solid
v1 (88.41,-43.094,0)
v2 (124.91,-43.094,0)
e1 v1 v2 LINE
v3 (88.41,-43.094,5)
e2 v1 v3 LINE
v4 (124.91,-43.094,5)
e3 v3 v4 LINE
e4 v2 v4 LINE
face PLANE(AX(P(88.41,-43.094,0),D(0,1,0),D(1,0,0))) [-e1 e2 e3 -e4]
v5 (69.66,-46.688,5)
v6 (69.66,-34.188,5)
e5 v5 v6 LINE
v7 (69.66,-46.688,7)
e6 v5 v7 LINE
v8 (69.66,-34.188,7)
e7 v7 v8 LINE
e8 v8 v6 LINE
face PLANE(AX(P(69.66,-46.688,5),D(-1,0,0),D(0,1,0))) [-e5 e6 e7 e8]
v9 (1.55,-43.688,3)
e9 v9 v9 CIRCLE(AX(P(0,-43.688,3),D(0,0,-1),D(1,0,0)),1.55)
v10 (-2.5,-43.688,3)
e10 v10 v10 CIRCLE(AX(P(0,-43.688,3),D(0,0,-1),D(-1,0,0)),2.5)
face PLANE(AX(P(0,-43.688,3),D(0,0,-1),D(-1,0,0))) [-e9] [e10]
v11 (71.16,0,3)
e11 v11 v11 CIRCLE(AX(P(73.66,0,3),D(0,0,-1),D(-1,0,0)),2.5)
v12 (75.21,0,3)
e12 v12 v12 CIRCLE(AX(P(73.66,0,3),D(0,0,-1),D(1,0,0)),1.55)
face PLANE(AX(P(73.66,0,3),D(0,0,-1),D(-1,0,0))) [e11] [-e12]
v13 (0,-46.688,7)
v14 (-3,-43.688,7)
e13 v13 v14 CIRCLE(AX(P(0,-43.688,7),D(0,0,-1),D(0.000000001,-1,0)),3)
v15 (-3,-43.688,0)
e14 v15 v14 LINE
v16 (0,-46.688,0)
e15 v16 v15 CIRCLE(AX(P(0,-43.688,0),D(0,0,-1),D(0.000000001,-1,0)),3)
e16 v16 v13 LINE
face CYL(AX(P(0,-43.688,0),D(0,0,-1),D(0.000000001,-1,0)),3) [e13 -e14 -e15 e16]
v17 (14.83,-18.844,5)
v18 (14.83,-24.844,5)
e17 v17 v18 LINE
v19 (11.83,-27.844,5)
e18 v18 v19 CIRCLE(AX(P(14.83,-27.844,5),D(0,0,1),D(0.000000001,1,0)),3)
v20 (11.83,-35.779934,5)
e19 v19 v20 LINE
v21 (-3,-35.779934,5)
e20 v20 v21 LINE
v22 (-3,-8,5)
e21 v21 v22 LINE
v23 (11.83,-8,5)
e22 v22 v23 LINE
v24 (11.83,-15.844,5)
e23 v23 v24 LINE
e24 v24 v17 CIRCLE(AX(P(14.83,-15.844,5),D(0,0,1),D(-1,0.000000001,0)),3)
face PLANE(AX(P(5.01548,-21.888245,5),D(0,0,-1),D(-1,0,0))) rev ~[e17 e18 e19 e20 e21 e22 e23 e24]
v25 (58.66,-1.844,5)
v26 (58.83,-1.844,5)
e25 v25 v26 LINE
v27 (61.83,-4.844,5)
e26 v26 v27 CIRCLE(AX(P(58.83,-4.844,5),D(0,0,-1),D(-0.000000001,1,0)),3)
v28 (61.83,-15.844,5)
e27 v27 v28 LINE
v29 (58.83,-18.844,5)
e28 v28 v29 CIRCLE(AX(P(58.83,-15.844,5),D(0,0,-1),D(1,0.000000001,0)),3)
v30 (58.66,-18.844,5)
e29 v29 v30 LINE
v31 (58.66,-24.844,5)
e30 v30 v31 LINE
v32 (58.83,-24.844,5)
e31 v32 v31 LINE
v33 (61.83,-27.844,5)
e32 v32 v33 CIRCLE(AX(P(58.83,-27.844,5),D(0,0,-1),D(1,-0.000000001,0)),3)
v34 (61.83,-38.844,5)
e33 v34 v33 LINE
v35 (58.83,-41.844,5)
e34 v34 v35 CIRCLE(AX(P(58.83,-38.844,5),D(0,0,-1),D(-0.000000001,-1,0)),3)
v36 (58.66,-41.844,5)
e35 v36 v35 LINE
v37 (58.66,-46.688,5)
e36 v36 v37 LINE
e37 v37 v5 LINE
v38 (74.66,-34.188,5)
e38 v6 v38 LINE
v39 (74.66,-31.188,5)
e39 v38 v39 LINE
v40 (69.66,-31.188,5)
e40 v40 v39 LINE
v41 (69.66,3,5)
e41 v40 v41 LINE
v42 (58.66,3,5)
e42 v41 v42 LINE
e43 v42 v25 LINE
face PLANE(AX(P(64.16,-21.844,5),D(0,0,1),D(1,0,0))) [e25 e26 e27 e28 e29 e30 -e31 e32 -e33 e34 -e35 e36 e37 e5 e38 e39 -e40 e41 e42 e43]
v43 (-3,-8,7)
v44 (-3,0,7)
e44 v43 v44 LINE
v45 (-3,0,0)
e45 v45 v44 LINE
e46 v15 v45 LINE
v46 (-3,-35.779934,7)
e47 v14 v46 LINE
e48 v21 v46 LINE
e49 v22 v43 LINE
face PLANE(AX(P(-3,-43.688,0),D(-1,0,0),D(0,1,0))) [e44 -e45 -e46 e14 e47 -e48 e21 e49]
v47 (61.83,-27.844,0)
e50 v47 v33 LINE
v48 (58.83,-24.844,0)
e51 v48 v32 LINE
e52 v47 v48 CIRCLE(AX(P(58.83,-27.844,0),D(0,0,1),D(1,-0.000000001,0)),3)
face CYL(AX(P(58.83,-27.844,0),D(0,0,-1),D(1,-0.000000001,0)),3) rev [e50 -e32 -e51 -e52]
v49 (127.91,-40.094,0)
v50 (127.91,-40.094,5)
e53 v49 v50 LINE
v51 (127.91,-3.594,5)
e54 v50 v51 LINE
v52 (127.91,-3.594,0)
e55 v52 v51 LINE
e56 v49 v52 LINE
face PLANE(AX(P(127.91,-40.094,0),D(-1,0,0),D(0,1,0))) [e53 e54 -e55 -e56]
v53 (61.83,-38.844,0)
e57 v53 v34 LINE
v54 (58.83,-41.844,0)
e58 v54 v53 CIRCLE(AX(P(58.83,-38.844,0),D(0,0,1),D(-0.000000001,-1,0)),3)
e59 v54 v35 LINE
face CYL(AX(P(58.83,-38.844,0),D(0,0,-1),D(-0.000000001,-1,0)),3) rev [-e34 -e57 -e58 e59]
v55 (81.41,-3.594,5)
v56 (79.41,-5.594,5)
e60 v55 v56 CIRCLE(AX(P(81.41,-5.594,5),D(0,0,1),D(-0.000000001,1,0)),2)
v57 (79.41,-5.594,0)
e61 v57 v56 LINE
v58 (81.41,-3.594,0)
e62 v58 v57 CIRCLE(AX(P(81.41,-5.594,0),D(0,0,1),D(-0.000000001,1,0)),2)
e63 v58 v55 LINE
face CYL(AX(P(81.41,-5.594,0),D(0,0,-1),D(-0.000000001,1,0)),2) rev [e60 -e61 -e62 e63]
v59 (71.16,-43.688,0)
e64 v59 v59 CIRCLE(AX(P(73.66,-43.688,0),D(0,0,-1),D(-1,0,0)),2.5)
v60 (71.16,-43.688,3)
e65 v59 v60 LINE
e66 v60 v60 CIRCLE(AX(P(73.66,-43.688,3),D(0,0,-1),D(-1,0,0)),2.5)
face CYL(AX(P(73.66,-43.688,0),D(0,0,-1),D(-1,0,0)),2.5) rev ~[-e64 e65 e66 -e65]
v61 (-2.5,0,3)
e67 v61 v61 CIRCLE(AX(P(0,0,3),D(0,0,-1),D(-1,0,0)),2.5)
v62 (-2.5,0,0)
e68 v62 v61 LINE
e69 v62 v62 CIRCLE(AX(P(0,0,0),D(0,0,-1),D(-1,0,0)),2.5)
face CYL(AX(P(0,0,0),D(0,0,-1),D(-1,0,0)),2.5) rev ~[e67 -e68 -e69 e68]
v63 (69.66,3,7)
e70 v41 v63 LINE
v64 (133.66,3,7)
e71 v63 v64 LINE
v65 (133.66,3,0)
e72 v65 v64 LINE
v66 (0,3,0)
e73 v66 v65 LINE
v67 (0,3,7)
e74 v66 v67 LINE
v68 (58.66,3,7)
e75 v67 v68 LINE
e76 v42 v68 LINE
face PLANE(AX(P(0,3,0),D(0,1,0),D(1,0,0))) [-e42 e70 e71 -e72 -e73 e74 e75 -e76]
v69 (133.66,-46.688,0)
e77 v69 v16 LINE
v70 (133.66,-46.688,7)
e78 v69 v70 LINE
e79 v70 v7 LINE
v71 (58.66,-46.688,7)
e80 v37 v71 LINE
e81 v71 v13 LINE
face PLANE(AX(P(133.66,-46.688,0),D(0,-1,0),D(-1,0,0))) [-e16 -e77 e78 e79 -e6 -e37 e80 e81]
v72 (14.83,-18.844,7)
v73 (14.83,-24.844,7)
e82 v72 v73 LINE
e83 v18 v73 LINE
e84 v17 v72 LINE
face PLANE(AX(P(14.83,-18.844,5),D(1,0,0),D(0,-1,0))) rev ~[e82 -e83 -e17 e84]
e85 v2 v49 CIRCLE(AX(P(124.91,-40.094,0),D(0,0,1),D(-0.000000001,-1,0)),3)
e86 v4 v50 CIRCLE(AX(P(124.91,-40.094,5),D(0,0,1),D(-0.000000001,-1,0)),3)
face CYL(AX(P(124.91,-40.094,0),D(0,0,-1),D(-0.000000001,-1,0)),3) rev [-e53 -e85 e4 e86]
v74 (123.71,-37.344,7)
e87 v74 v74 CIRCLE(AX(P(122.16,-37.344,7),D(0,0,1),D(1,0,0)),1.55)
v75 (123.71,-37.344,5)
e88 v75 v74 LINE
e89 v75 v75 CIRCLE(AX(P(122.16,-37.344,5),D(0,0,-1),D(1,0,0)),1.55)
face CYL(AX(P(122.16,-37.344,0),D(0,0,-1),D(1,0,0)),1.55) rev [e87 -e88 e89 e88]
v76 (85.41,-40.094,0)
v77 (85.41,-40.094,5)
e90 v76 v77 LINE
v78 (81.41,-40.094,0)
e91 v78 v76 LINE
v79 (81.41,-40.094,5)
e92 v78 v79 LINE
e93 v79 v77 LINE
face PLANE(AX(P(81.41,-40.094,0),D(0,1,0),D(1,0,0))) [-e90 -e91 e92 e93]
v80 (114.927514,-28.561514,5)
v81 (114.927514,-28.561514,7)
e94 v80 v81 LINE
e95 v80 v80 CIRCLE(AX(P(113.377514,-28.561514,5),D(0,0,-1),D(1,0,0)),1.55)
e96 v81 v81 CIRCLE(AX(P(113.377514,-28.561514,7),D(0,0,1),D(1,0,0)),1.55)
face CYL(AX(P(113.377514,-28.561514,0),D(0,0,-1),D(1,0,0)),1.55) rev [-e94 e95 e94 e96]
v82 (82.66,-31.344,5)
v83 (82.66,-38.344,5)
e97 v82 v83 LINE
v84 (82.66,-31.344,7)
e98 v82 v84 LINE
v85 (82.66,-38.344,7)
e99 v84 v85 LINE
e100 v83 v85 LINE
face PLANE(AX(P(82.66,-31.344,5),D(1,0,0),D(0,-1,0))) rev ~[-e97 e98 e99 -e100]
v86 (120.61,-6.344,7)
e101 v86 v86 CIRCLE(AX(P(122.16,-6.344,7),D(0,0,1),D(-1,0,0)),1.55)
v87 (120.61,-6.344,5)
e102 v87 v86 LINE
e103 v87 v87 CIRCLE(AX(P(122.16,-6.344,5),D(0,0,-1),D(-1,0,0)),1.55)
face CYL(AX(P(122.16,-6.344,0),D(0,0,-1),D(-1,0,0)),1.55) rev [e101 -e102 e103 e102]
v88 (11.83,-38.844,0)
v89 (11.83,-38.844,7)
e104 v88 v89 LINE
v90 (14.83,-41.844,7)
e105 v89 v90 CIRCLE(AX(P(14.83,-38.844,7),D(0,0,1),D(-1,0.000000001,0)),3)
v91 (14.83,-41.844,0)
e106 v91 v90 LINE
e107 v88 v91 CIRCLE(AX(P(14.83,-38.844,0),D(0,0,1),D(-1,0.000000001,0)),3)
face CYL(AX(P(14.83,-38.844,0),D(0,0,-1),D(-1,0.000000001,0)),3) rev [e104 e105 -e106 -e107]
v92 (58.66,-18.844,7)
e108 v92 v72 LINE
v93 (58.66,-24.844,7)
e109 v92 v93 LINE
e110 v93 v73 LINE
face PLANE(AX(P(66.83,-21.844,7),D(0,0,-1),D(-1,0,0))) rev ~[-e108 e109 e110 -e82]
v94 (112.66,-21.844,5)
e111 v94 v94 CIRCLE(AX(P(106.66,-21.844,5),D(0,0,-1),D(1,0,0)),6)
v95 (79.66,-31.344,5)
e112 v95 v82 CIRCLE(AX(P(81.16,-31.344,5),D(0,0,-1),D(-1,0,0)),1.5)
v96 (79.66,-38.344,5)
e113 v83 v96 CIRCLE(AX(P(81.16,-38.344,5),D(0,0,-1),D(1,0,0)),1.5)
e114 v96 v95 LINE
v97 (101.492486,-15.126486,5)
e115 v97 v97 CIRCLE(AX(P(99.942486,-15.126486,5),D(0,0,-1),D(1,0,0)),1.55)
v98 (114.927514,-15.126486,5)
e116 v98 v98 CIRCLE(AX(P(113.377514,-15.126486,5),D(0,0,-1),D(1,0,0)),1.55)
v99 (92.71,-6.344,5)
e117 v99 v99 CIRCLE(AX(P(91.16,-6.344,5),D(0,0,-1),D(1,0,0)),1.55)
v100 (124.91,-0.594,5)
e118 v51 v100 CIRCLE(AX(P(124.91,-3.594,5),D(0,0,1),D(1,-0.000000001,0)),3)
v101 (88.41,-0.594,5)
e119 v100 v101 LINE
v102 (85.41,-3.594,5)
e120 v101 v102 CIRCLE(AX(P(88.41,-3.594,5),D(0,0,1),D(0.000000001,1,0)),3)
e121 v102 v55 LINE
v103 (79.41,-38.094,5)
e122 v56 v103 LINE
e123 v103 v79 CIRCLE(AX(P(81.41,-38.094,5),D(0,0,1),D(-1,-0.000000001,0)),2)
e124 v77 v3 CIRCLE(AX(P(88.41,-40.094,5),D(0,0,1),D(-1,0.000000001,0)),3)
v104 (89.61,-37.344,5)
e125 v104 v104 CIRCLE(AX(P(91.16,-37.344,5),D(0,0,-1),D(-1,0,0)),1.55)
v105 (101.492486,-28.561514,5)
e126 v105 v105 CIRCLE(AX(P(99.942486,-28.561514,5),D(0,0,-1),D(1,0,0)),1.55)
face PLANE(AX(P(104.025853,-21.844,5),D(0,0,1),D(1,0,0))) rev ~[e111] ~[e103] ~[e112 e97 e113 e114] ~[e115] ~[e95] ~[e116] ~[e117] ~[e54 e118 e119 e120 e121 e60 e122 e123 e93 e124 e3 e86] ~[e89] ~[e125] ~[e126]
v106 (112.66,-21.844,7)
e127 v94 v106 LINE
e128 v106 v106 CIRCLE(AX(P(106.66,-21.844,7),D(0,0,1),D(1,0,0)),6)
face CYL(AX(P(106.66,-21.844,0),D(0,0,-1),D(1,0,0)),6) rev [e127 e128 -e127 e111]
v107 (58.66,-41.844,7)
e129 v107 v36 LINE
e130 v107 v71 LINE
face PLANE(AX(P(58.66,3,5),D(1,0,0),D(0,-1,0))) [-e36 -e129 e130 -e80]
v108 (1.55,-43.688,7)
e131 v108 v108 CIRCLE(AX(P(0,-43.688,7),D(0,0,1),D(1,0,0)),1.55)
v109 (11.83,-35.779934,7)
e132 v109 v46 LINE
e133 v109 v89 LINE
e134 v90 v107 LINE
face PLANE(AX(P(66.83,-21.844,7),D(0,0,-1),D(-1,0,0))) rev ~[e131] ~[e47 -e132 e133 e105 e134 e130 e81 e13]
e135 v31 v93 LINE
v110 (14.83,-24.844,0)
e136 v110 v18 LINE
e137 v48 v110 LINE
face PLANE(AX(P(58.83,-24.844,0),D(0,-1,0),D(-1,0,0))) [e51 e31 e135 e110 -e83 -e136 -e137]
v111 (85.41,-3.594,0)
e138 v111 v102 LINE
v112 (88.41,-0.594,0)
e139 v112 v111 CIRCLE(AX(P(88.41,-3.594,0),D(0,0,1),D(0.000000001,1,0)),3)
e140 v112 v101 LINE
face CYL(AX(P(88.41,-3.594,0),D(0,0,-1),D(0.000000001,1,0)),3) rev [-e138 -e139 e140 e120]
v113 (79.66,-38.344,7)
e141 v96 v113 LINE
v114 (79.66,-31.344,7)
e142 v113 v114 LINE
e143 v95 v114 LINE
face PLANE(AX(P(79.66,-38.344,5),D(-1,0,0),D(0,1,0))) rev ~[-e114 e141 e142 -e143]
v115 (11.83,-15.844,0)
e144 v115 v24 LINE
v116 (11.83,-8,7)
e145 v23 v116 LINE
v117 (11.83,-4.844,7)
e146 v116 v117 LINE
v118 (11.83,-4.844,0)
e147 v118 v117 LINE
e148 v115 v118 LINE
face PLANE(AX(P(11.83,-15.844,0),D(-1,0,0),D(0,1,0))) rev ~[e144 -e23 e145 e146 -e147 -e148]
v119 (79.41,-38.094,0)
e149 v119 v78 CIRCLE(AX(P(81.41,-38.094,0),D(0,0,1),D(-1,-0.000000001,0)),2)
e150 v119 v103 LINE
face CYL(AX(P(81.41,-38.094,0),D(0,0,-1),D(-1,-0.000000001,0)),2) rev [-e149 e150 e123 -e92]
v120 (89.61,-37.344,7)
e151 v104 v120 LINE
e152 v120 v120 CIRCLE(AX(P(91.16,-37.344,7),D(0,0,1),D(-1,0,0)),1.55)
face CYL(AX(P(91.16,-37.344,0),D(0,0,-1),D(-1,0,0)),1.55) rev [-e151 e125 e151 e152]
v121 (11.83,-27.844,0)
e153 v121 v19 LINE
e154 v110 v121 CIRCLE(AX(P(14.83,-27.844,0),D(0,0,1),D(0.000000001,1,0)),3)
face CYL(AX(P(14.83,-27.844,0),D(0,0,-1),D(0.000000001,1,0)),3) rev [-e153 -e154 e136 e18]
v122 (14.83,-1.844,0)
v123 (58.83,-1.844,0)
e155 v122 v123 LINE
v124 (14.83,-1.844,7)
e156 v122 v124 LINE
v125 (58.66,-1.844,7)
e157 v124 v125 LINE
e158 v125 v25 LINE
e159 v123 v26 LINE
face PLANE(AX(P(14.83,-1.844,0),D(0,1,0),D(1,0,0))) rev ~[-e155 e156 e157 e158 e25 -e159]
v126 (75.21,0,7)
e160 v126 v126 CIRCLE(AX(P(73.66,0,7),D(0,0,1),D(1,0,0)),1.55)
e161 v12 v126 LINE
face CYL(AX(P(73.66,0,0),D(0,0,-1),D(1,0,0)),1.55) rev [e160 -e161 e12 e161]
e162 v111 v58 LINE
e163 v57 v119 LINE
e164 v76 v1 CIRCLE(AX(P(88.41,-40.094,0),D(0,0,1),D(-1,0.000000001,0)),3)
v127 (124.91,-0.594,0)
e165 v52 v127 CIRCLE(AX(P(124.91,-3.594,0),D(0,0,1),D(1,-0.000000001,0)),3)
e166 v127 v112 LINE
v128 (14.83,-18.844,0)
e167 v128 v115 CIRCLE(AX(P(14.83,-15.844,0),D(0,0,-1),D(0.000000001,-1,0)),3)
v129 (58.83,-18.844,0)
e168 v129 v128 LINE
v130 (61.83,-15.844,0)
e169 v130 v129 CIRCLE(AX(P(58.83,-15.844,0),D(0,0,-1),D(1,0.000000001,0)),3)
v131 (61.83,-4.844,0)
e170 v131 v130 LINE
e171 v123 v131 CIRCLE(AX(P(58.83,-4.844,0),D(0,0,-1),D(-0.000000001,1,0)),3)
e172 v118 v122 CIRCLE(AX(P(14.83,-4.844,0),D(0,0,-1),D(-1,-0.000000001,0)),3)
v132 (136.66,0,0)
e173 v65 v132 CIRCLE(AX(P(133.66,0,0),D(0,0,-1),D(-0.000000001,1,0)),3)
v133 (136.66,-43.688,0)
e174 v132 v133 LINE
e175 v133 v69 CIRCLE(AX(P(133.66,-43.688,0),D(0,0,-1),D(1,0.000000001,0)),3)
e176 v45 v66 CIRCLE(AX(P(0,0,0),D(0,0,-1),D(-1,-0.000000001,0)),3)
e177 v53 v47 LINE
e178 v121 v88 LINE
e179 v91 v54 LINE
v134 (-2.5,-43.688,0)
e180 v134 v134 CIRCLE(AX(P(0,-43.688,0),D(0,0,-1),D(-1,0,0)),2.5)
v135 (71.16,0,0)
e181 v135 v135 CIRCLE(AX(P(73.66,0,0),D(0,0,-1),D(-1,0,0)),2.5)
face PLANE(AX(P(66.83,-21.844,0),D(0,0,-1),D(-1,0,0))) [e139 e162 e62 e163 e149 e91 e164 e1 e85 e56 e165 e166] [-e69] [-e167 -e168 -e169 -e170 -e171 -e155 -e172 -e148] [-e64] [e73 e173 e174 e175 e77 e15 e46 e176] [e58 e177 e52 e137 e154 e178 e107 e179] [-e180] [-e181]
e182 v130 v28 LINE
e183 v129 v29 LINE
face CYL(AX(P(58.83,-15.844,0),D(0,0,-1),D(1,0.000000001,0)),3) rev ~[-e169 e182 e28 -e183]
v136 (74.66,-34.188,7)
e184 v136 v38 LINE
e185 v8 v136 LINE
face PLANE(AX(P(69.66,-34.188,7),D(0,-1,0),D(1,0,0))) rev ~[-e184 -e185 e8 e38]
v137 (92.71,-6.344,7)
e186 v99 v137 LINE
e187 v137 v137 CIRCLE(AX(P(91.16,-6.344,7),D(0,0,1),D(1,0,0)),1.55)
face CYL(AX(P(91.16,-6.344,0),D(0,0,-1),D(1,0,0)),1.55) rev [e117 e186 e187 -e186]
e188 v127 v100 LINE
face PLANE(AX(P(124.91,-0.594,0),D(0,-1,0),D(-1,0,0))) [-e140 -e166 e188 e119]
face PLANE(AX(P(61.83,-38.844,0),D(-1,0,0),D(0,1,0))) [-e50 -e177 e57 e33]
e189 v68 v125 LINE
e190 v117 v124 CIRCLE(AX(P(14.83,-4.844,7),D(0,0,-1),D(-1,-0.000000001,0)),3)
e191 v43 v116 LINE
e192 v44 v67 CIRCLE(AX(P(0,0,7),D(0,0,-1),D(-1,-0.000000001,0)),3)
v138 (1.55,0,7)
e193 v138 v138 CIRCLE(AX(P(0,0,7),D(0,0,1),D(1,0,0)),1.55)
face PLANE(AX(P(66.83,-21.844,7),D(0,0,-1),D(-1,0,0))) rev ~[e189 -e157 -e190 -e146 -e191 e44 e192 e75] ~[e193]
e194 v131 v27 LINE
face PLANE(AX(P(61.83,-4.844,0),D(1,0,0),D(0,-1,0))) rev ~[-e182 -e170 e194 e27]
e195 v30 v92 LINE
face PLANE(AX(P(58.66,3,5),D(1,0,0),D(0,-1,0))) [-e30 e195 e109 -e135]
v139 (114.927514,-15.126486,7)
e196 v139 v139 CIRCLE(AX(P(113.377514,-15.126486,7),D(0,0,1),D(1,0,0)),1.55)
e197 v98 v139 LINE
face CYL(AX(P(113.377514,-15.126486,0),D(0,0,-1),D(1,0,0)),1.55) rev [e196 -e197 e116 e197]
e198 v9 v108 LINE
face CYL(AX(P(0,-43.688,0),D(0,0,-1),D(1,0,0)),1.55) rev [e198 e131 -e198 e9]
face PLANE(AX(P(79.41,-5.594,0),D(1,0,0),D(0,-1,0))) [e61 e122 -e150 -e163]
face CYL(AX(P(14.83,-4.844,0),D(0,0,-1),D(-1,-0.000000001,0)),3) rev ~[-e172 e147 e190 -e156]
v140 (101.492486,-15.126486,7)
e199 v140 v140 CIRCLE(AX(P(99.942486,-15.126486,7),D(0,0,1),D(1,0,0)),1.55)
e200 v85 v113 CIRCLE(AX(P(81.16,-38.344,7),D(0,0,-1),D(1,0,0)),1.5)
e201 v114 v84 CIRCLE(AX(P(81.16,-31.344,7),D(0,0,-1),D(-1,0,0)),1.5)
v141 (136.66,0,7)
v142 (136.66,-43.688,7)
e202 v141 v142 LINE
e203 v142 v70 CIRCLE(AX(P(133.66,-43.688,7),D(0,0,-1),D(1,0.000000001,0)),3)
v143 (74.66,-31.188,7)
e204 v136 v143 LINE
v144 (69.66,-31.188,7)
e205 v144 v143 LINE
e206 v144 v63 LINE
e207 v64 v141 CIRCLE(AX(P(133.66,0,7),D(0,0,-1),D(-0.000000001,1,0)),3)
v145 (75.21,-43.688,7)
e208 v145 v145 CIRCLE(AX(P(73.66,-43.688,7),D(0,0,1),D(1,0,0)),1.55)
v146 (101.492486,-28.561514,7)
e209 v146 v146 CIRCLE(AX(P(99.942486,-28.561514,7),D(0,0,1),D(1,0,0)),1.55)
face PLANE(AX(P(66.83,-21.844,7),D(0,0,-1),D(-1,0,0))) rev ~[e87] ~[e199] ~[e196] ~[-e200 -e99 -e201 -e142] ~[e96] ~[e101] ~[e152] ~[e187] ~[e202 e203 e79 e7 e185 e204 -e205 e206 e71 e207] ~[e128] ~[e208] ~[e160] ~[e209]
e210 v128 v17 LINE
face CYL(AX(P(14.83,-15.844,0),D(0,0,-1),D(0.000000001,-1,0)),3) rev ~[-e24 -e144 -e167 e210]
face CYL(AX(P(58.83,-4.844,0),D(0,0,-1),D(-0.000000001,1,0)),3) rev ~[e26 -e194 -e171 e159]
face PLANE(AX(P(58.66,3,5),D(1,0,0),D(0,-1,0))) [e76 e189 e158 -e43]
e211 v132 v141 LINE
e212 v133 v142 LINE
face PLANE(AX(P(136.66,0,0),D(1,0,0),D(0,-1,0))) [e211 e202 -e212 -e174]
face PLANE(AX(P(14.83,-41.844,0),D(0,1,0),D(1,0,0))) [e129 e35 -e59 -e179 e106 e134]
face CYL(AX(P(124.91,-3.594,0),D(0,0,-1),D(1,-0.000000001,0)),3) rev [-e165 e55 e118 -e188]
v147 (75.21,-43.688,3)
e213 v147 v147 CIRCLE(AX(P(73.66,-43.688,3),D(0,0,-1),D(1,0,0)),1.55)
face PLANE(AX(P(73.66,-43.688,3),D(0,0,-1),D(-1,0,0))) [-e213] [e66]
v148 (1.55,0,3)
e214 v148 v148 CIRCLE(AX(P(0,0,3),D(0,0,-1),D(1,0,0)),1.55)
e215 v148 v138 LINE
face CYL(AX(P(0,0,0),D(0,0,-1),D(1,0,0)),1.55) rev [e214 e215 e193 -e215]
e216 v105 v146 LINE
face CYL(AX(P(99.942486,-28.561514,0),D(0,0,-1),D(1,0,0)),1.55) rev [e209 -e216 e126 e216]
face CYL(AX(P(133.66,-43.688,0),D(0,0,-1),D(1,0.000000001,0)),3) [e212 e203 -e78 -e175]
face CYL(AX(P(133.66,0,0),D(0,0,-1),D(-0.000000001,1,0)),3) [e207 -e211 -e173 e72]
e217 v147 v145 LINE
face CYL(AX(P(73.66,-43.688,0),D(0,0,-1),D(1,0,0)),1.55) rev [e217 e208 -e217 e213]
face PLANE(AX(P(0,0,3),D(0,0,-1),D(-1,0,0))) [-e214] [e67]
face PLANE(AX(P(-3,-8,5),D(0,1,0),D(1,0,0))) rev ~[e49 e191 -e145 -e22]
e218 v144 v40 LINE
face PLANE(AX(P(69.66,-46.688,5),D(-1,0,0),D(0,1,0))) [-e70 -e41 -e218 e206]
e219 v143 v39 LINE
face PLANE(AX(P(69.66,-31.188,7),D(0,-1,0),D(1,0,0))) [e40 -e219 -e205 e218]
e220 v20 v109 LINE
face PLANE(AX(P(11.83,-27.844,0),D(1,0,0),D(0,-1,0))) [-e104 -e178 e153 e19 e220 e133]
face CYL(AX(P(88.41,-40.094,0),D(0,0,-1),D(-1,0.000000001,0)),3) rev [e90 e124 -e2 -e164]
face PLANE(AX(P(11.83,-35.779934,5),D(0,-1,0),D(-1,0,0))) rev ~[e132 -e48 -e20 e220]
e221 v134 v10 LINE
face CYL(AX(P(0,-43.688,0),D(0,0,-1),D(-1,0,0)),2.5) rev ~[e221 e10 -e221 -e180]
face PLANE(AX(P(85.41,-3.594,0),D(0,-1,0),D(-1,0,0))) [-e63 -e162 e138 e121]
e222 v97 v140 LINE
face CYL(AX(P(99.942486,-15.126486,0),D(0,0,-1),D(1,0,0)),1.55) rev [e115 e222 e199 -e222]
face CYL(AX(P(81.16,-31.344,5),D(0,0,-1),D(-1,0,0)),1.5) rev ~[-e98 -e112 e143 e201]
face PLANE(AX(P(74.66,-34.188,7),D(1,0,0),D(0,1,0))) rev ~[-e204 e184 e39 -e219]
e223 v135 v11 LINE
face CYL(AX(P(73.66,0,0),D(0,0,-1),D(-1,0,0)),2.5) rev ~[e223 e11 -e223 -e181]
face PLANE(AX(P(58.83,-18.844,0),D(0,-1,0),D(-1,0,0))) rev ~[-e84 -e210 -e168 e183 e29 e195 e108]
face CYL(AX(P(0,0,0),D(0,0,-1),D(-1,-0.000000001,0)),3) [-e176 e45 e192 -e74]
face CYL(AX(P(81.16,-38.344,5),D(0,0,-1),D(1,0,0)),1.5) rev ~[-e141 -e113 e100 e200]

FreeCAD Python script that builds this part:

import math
import FreeCAD as App
import Part
import Sketcher
from FreeCAD import Vector

doc = App.newDocument("Part")
params = doc.addObject("Spreadsheet::Sheet", "Params")
for row, (alias, value) in enumerate([
    ("sketch1_diameter", "12 mm"),
    ("sketch1_radius", "3 mm"),
    ("sketch1_diameter2", "3.1 mm"),
    ("sketch1_width", "44 mm"),
    ("sketch1_height", "11 mm"),
    ("pad1_length", "7 mm"),
    ("sketch2_radius", "3 mm"),
    ("sketch2_width", "11 mm"),
    ("sketch2_height", "6 mm"),
    ("sketch2_width2", "14.83 mm"),
    ("pocket1_length", "2 mm"),
    ("sketch3_diameter", "5 mm"),
    ("pocket2_length", "3 mm"),
    ("sketch4_radius", "3 mm"),
    ("sketch4_radius2", "2 mm"),
    ("sketch4_width", "4 mm"),
    ("sketch4_width2", "36.5 mm"),
    ("pocket3_length", "5 mm"),
    ("sketch5_radius", "1.5 mm"),
    ("sketch5_height", "7 mm"),
    ("pocket4_length", "2 mm"),
    ("sketch6_width", "5 mm"),
    ("sketch6_height", "3 mm"),
    ("pocket5_length", "2 mm"),
], start=1):
    params.set(f"A{row}", alias)
    params.set(f"B{row}", "=" + value)
    params.setAlias(f"B{row}", alias)

body = doc.addObject("PartDesign::Body", "Body")

# Sketch on XY plane
sketch1 = body.newObject("Sketcher::SketchObject", "Sketch")
sketch1.AttachmentSupport = (doc.getObject("XY_Plane"), [""])
sketch1.MapMode = "FlatFace"
sketch1.addGeometry([
    Part.LineSegment(Vector(133.7, 3, 0), Vector(0, 3, 0)),  # 0
    Part.ArcOfCircle(Part.Circle(Vector(0, 0, 0), Vector(0, 0, 1), 3), math.radians(90), math.radians(180)),  # 1
    Part.LineSegment(Vector(-3, 0, 0), Vector(-3, -43.7, 0)),  # 2
    Part.ArcOfCircle(Part.Circle(Vector(0, -43.7, 0), Vector(0, 0, 1), 3), math.radians(180), math.radians(270)),  # 3
    Part.LineSegment(Vector(0, -46.7, 0), Vector(133.7, -46.7, 0)),  # 4
    Part.ArcOfCircle(Part.Circle(Vector(133.7, -43.7, 0), Vector(0, 0, 1), 3), math.radians(-90), math.radians(0)),  # 5
    Part.LineSegment(Vector(136.7, -43.7, 0), Vector(136.7, 0, 0)),  # 6
    Part.ArcOfCircle(Part.Circle(Vector(133.7, 0, 0), Vector(0, 0, 1), 3), math.radians(0), math.radians(90)),  # 7
    Part.Circle(Vector(122.2, -37.3, 0), Vector(0, 0, 1), 1.6),  # 8
    Part.Circle(Vector(73.7, -43.7, 0), Vector(0, 0, 1), 1.6),  # 9
    Part.Circle(Vector(91.2, -37.3, 0), Vector(0, 0, 1), 1.6),  # 10
    Part.Circle(Vector(113.4, -28.6, 0), Vector(0, 0, 1), 1.6),  # 11
    Part.Circle(Vector(99.9, -28.6, 0), Vector(0, 0, 1), 1.6),  # 12
    Part.Circle(Vector(0, -43.7, 0), Vector(0, 0, 1), 1.6),  # 13
    Part.LineSegment(Vector(58.8, -41.8, 0), Vector(14.8, -41.8, 0)),  # 14
    Part.ArcOfCircle(Part.Circle(Vector(14.8, -38.8, 0), Vector(0, 0, 1), 3), math.radians(180), math.radians(270)),  # 15
    Part.LineSegment(Vector(11.8, -38.8, 0), Vector(11.8, -27.8, 0)),  # 16
    Part.ArcOfCircle(Part.Circle(Vector(14.8, -27.8, 0), Vector(0, 0, 1), 3), math.radians(90), math.radians(180)),  # 17
    Part.LineSegment(Vector(14.8, -24.8, 0), Vector(58.8, -24.8, 0)),  # 18
    Part.ArcOfCircle(Part.Circle(Vector(58.8, -27.8, 0), Vector(0, 0, 1), 3), math.radians(0), math.radians(90)),  # 19
    Part.LineSegment(Vector(61.8, -27.8, 0), Vector(61.8, -38.8, 0)),  # 20
    Part.ArcOfCircle(Part.Circle(Vector(58.8, -38.8, 0), Vector(0, 0, 1), 3), math.radians(-90), math.radians(0)),  # 21
    Part.Circle(Vector(106.7, -21.8, 0), Vector(0, 0, 1), 6),  # 22
    Part.Circle(Vector(113.4, -15.1, 0), Vector(0, 0, 1), 1.6),  # 23
    Part.Circle(Vector(99.9, -15.1, 0), Vector(0, 0, 1), 1.6),  # 24
    Part.Circle(Vector(122.2, -6.3, 0), Vector(0, 0, 1), 1.6),  # 25
    Part.Circle(Vector(91.2, -6.3, 0), Vector(0, 0, 1), 1.6),  # 26
    Part.Circle(Vector(73.7, 0, 0), Vector(0, 0, 1), 1.6),  # 27
    Part.LineSegment(Vector(11.8, -15.8, 0), Vector(11.8, -4.8, 0)),  # 28
    Part.ArcOfCircle(Part.Circle(Vector(14.8, -4.8, 0), Vector(0, 0, 1), 3), math.radians(90), math.radians(180)),  # 29
    Part.LineSegment(Vector(14.8, -1.8, 0), Vector(58.8, -1.8, 0)),  # 30
    Part.ArcOfCircle(Part.Circle(Vector(58.8, -4.8, 0), Vector(0, 0, 1), 3), math.radians(0), math.radians(90)),  # 31
    Part.LineSegment(Vector(61.8, -4.8, 0), Vector(61.8, -15.8, 0)),  # 32
    Part.ArcOfCircle(Part.Circle(Vector(58.8, -15.8, 0), Vector(0, 0, 1), 3), math.radians(-90), math.radians(0)),  # 33
    Part.LineSegment(Vector(58.8, -18.8, 0), Vector(14.8, -18.8, 0)),  # 34
    Part.ArcOfCircle(Part.Circle(Vector(14.8, -15.8, 0), Vector(0, 0, 1), 3), math.radians(180), math.radians(270)),  # 35
    Part.Circle(Vector(0, 0, 0), Vector(0, 0, 1), 1.6),  # 36
], False)
sketch1.addConstraint([
    Sketcher.Constraint("Tangent", 0, 2, 1, 1),
    Sketcher.Constraint("Tangent", 1, 2, 2, 1),
    Sketcher.Constraint("Tangent", 2, 2, 3, 1),
    Sketcher.Constraint("Tangent", 3, 2, 4, 1),
    Sketcher.Constraint("Tangent", 4, 2, 5, 1),
    Sketcher.Constraint("Tangent", 5, 2, 6, 1),
    Sketcher.Constraint("Tangent", 6, 2, 7, 1),
    Sketcher.Constraint("Tangent", 7, 2, 0, 1),
    Sketcher.Constraint("Tangent", 14, 2, 15, 2),
    Sketcher.Constraint("Tangent", 15, 1, 16, 1),
    Sketcher.Constraint("Tangent", 16, 2, 17, 2),
    Sketcher.Constraint("Tangent", 17, 1, 18, 1),
    Sketcher.Constraint("Tangent", 18, 2, 19, 2),
    Sketcher.Constraint("Tangent", 19, 1, 20, 1),
    Sketcher.Constraint("Tangent", 20, 2, 21, 2),
    Sketcher.Constraint("Tangent", 21, 1, 14, 1),
    Sketcher.Constraint("Tangent", 28, 2, 29, 2),
    Sketcher.Constraint("Tangent", 29, 1, 30, 1),
    Sketcher.Constraint("Tangent", 30, 2, 31, 2),
    Sketcher.Constraint("Tangent", 31, 1, 32, 1),
    Sketcher.Constraint("Tangent", 32, 2, 33, 2),
    Sketcher.Constraint("Tangent", 33, 1, 34, 1),
    Sketcher.Constraint("Tangent", 34, 2, 35, 2),
    Sketcher.Constraint("Tangent", 35, 1, 28, 1),
    Sketcher.Constraint("Horizontal", 0),
    Sketcher.Constraint("Vertical", 2),
    Sketcher.Constraint("Horizontal", 4),
    Sketcher.Constraint("Vertical", 6),
    Sketcher.Constraint("Horizontal", 14),
    Sketcher.Constraint("Vertical", 16),
    Sketcher.Constraint("Horizontal", 18),
    Sketcher.Constraint("Vertical", 20),
    Sketcher.Constraint("Vertical", 28),
    Sketcher.Constraint("Horizontal", 30),
    Sketcher.Constraint("Vertical", 32),
    Sketcher.Constraint("Horizontal", 34),
    Sketcher.Constraint("Coincident", 1, 3, -1, 1),
    Sketcher.Constraint("Coincident", 36, 3, -1, 1),
    Sketcher.Constraint("Coincident", 13, 3, 3, 3),
    Sketcher.Constraint("Equal", 1, 3),
    Sketcher.Constraint("Equal", 3, 5),
    Sketcher.Constraint("Equal", 5, 7),
    Sketcher.Constraint("Equal", 8, 9),
    Sketcher.Constraint("Equal", 9, 10),
    Sketcher.Constraint("Equal", 10, 11),
    Sketcher.Constraint("Equal", 11, 12),
    Sketcher.Constraint("Equal", 12, 13),
    Sketcher.Constraint("Equal", 7, 15),
    Sketcher.Constraint("Equal", 15, 17),
    Sketcher.Constraint("Equal", 17, 19),
    Sketcher.Constraint("Equal", 19, 21),
    Sketcher.Constraint("Equal", 13, 23),
    Sketcher.Constraint("Equal", 23, 24),
    Sketcher.Constraint("Equal", 24, 25),
    Sketcher.Constraint("Equal", 25, 26),
    Sketcher.Constraint("Equal", 26, 27),
    Sketcher.Constraint("Equal", 21, 29),
    Sketcher.Constraint("Equal", 29, 31),
    Sketcher.Constraint("Equal", 31, 33),
    Sketcher.Constraint("Equal", 33, 35),
    Sketcher.Constraint("Equal", 27, 36),
    Sketcher.Constraint("PointOnObject", 27, 3, -1),
    Sketcher.Constraint("Horizontal", 5, 3, 9, 3),
    Sketcher.Constraint("Horizontal", 8, 3, 10, 3),
    Sketcher.Constraint("Horizontal", 11, 3, 12, 3),
    Sketcher.Constraint("Horizontal", 23, 3, 24, 3),
    Sketcher.Constraint("Horizontal", 25, 3, 26, 3),
    Sketcher.Constraint("Vertical", 11, 3, 23, 3),
    Sketcher.Constraint("Vertical", 12, 3, 24, 3),
    Sketcher.Constraint("Vertical", 8, 3, 25, 3),
    Sketcher.Constraint("Vertical", 10, 3, 26, 3),
    Sketcher.Constraint("Vertical", 9, 3, 27, 3),
    Sketcher.Constraint("Vertical", 17, 3, 29, 3),
    Sketcher.Constraint("Vertical", 21, 3, 31, 3),
    Sketcher.Constraint("Equal", 20, 28),
    Sketcher.Constraint("Diameter", 22, 12.0),
    Sketcher.Constraint("Radius", 1, 3.0),
    Sketcher.Constraint("Diameter", 8, 3.1),
    Sketcher.Constraint("DistanceX", 14, 2, 14, 1, 44.0),
    Sketcher.Constraint("DistanceY", 16, 1, 16, 2, 11.0),
    Sketcher.Constraint("DistanceX", 9, 3, 5, 3, 60.0),
    Sketcher.Constraint("DistanceX", 10, 3, 8, 3, 31.0),
    Sketcher.Constraint("DistanceX", 22, 3, 5, 3, 27.0),
    Sketcher.Constraint("DistanceY", 10, 3, 26, 3, 31.0),
    Sketcher.Constraint("DistanceY", 17, 3, 29, 3, 23.0),
    Sketcher.Constraint("DistanceX", 0, 2, 0, 1, 133.66),
    Sketcher.Constraint("DistanceX", 8, 3, 5, 3, 11.5),
    Sketcher.Constraint("DistanceY", 15, 3, 10, 3, 1.5),
    Sketcher.Constraint("DistanceY", 8, 3, 22, 3, 15.5),
    Sketcher.Constraint("DistanceY", 2, 2, 2, 1, 43.688),
    Sketcher.Constraint("DistanceX", -1, 1, 15, 3, 14.83),
    Sketcher.Constraint("DistanceY", 8, 3, -1, 1, 37.344),
    Sketcher.Constraint("DistanceX", 12, 3, 11, 3, 13.435029),
    Sketcher.Constraint("DistanceY", 11, 3, 23, 3, 13.435029),
    Sketcher.Constraint("DistanceX", -1, 1, 11, 3, 113.377514),
    Sketcher.Constraint("DistanceY", 11, 3, -1, 1, 28.561514),
])
sketch1.setExpression("Constraints[75]", "Params.sketch1_diameter")
sketch1.setExpression("Constraints[76]", "Params.sketch1_radius")
sketch1.setExpression("Constraints[77]", "Params.sketch1_diameter2")
sketch1.setExpression("Constraints[78]", "Params.sketch1_width")
sketch1.setExpression("Constraints[79]", "Params.sketch1_height")
pad1 = body.newObject("PartDesign::Pad", "Pad")
pad1.Profile = sketch1
pad1.setExpression("Length", "Params.pad1_length")

# Sketch on XY plane
sketch2 = body.newObject("Sketcher::SketchObject", "Sketch001")
sketch2.AttachmentSupport = (doc.getObject("XY_Plane"), [""])
sketch2.MapMode = "FlatFace"
sketch2.AttachmentOffset = App.Placement(Vector(0, 0, 5), App.Rotation())
sketch2.addGeometry([
    Part.LineSegment(Vector(11.8, -15.8, 0), Vector(11.8, -8, 0)),  # 0
    Part.LineSegment(Vector(11.8, -8, 0), Vector(-3, -8, 0)),  # 1
    Part.LineSegment(Vector(-3, -8, 0), Vector(-3, -35.8, 0)),  # 2
    Part.LineSegment(Vector(-3, -35.8, 0), Vector(11.8, -35.8, 0)),  # 3
    Part.LineSegment(Vector(11.8, -35.8, 0), Vector(11.8, -27.8, 0)),  # 4
    Part.ArcOfCircle(Part.Circle(Vector(14.8, -27.8, 0), Vector(0, 0, 1), 3), math.radians(90), math.radians(180)),  # 5
    Part.LineSegment(Vector(14.8, -24.8, 0), Vector(14.8, -18.8, 0)),  # 6
    Part.ArcOfCircle(Part.Circle(Vector(14.8, -15.8, 0), Vector(0, 0, 1), 3), math.radians(180), math.radians(270)),  # 7
    Part.LineSegment(Vector(69.7, 3, 0), Vector(58.7, 3, 0)),  # 8
    Part.LineSegment(Vector(58.7, 3, 0), Vector(58.7, -46.7, 0)),  # 9
    Part.LineSegment(Vector(58.7, -46.7, 0), Vector(69.7, -46.7, 0)),  # 10
    Part.LineSegment(Vector(69.7, -46.7, 0), Vector(69.7, 3, 0)),  # 11
], False)
sketch2.addConstraint([
    Sketcher.Constraint("Coincident", 0, 2, 1, 1),
    Sketcher.Constraint("Coincident", 1, 2, 2, 1),
    Sketcher.Constraint("Coincident", 2, 2, 3, 1),
    Sketcher.Constraint("Coincident", 3, 2, 4, 1),
    Sketcher.Constraint("Tangent", 4, 2, 5, 2),
    Sketcher.Constraint("Coincident", 5, 1, 6, 1),
    Sketcher.Constraint("Coincident", 6, 2, 7, 2),
    Sketcher.Constraint("Tangent", 7, 1, 0, 1),
    Sketcher.Constraint("Coincident", 8, 2, 9, 1),
    Sketcher.Constraint("Coincident", 9, 2, 10, 1),
    Sketcher.Constraint("Coincident", 10, 2, 11, 1),
    Sketcher.Constraint("Coincident", 11, 2, 8, 1),
    Sketcher.Constraint("Vertical", 0),
    Sketcher.Constraint("Horizontal", 1),
    Sketcher.Constraint("Vertical", 2),
    Sketcher.Constraint("Horizontal", 3),
    Sketcher.Constraint("Vertical", 4),
    Sketcher.Constraint("Vertical", 6),
    Sketcher.Constraint("Horizontal", 8),
    Sketcher.Constraint("Vertical", 9),
    Sketcher.Constraint("Horizontal", 10),
    Sketcher.Constraint("Vertical", 11),
    Sketcher.Constraint("Equal", 5, 7),
    Sketcher.Constraint("Vertical", 5, 3, 7, 3),
    Sketcher.Constraint("Vertical", 7, 3, 5, 1),
    Sketcher.Constraint("Radius", 5, 3.0),
    Sketcher.Constraint("DistanceX", 8, 2, 8, 1, 11.0),
    Sketcher.Constraint("DistanceY", 6, 1, 6, 2, 6.0),
    Sketcher.Constraint("DistanceY", 0, 2, -1, 1, 8.0),
    Sketcher.Constraint("DistanceX", 1, 2, -1, 1, 3.0),
    Sketcher.Constraint("DistanceY", -1, 1, 8, 2, 3.0),
    Sketcher.Constraint("DistanceX", 1, 2, 1, 1, 14.83),
    Sketcher.Constraint("DistanceY", 0, 1, 0, 2, 7.844),
    Sketcher.Constraint("DistanceY", 9, 2, 9, 1, 49.688),
    Sketcher.Constraint("DistanceX", -1, 1, 8, 2, 58.66),
    Sketcher.Constraint("DistanceY", 2, 2, 2, 1, 27.779934),
])
sketch2.setExpression("Constraints[25]", "Params.sketch2_radius")
sketch2.setExpression("Constraints[26]", "Params.sketch2_width")
sketch2.setExpression("Constraints[27]", "Params.sketch2_height")
sketch2.setExpression("Constraints[31]", "Params.sketch2_width2")
pocket1 = body.newObject("PartDesign::Pocket", "Pocket")
pocket1.Profile = sketch2
pocket1.setExpression("Length", "Params.pocket1_length")
pocket1.Reversed = True

# Sketch on XY plane
sketch3 = body.newObject("Sketcher::SketchObject", "Sketch002")
sketch3.AttachmentSupport = (doc.getObject("XY_Plane"), [""])
sketch3.MapMode = "FlatFace"
sketch3.addGeometry([
    Part.Circle(Vector(73.7, 0, 0), Vector(0, 0, 1), 2.5),
    Part.Circle(Vector(73.7, -43.7, 0), Vector(0, 0, 1), 2.5),
    Part.Circle(Vector(0, 0, 0), Vector(0, 0, 1), 2.5),
    Part.Circle(Vector(0, -43.7, 0), Vector(0, 0, 1), 2.5),
], False)
sketch3.addConstraint([
    Sketcher.Constraint("Coincident", 2, 3, -1, 1),
    Sketcher.Constraint("Equal", 0, 1),
    Sketcher.Constraint("Equal", 1, 2),
    Sketcher.Constraint("Equal", 2, 3),
    Sketcher.Constraint("PointOnObject", 0, 3, -1),
    Sketcher.Constraint("PointOnObject", 3, 3, -2),
    Sketcher.Constraint("Horizontal", 1, 3, 3, 3),
    Sketcher.Constraint("Vertical", 0, 3, 1, 3),
    Sketcher.Constraint("Diameter", 0, 5.0),
    Sketcher.Constraint("DistanceX", -1, 1, 0, 3, 73.66),
    Sketcher.Constraint("DistanceY", 1, 3, -1, 1, 43.688),
])
sketch3.setExpression("Constraints[8]", "Params.sketch3_diameter")
pocket2 = body.newObject("PartDesign::Pocket", "Pocket001")
pocket2.Profile = sketch3
pocket2.setExpression("Length", "Params.pocket2_length")
pocket2.Reversed = True

# Sketch on XY plane
sketch4 = body.newObject("Sketcher::SketchObject", "Sketch003")
sketch4.AttachmentSupport = (doc.getObject("XY_Plane"), [""])
sketch4.MapMode = "FlatFace"
sketch4.addGeometry([
    Part.LineSegment(Vector(81.4, -3.6, 0), Vector(85.4, -3.6, 0)),  # 0
    Part.ArcOfCircle(Part.Circle(Vector(88.4, -3.6, 0), Vector(0, 0, 1), 3), math.radians(90), math.radians(180)),  # 1
    Part.LineSegment(Vector(88.4, -0.6, 0), Vector(124.9, -0.6, 0)),  # 2
    Part.ArcOfCircle(Part.Circle(Vector(124.9, -3.6, 0), Vector(0, 0, 1), 3), math.radians(0), math.radians(90)),  # 3
    Part.LineSegment(Vector(127.9, -3.6, 0), Vector(127.9, -40.1, 0)),  # 4
    Part.ArcOfCircle(Part.Circle(Vector(124.9, -40.1, 0), Vector(0, 0, 1), 3), math.radians(-90), math.radians(0)),  # 5
    Part.LineSegment(Vector(124.9, -43.1, 0), Vector(88.4, -43.1, 0)),  # 6
    Part.ArcOfCircle(Part.Circle(Vector(88.4, -40.1, 0), Vector(0, 0, 1), 3), math.radians(180), math.radians(270)),  # 7
    Part.LineSegment(Vector(85.4, -40.1, 0), Vector(81.4, -40.1, 0)),  # 8
    Part.ArcOfCircle(Part.Circle(Vector(81.4, -38.1, 0), Vector(0, 0, 1), 2), math.radians(-180), math.radians(-90)),  # 9
    Part.LineSegment(Vector(79.4, -38.1, 0), Vector(79.4, -5.6, 0)),  # 10
    Part.ArcOfCircle(Part.Circle(Vector(81.4, -5.6, 0), Vector(0, 0, 1), 2), math.radians(90), math.radians(180)),  # 11
], False)
sketch4.addConstraint([
    Sketcher.Constraint("Coincident", 0, 2, 1, 2),
    Sketcher.Constraint("Tangent", 1, 1, 2, 1),
    Sketcher.Constraint("Tangent", 2, 2, 3, 2),
    Sketcher.Constraint("Tangent", 3, 1, 4, 1),
    Sketcher.Constraint("Tangent", 4, 2, 5, 2),
    Sketcher.Constraint("Tangent", 5, 1, 6, 1),
    Sketcher.Constraint("Tangent", 6, 2, 7, 2),
    Sketcher.Constraint("Coincident", 7, 1, 8, 1),
    Sketcher.Constraint("Tangent", 8, 2, 9, 2),
    Sketcher.Constraint("Tangent", 9, 1, 10, 1),
    Sketcher.Constraint("Tangent", 10, 2, 11, 2),
    Sketcher.Constraint("Tangent", 11, 1, 0, 1),
    Sketcher.Constraint("Horizontal", 0),
    Sketcher.Constraint("Horizontal", 2),
    Sketcher.Constraint("Vertical", 4),
    Sketcher.Constraint("Horizontal", 6),
    Sketcher.Constraint("Horizontal", 8),
    Sketcher.Constraint("Vertical", 10),
    Sketcher.Constraint("Equal", 1, 3),
    Sketcher.Constraint("Equal", 3, 5),
    Sketcher.Constraint("Equal", 5, 7),
    Sketcher.Constraint("Equal", 9, 11),
    Sketcher.Constraint("Horizontal", 3, 3, 0, 2),
    Sketcher.Constraint("Horizontal", 4, 2, 7, 1),
    Sketcher.Constraint("Vertical", 1, 3, 7, 3),
    Sketcher.Constraint("Equal", 6, 4),
    Sketcher.Constraint("Radius", 1, 3.0),
    Sketcher.Constraint("Radius", 9, 2.0),
    Sketcher.Constraint("DistanceX", 0, 1, 0, 2, 4.0),
    Sketcher.Constraint("DistanceX", 2, 1, 2, 2, 36.5),
    Sketcher.Constraint("DistanceX", -1, 1, 1, 3, 88.41),
    Sketcher.Constraint("DistanceY", 1, 3, -1, 1, 3.594),
])
sketch4.setExpression("Constraints[26]", "Params.sketch4_radius")
sketch4.setExpression("Constraints[27]", "Params.sketch4_radius2")
sketch4.setExpression("Constraints[28]", "Params.sketch4_width")
sketch4.setExpression("Constraints[29]", "Params.sketch4_width2")
pocket3 = body.newObject("PartDesign::Pocket", "Pocket002")
pocket3.Profile = sketch4
pocket3.setExpression("Length", "Params.pocket3_length")
pocket3.Reversed = True

# Sketch on XY plane
sketch5 = body.newObject("Sketcher::SketchObject", "Sketch004")
sketch5.AttachmentSupport = (doc.getObject("XY_Plane"), [""])
sketch5.MapMode = "FlatFace"
sketch5.AttachmentOffset = App.Placement(Vector(0, 0, 5), App.Rotation())
sketch5.addGeometry([
    Part.LineSegment(Vector(82.7, -31.3, 0), Vector(82.7, -38.3, 0)),
    Part.ArcOfCircle(Part.Circle(Vector(81.2, -38.3, 0), Vector(0, 0, 1), 1.5), math.radians(180), math.radians(360)),
    Part.LineSegment(Vector(79.7, -38.3, 0), Vector(79.7, -31.3, 0)),
    Part.ArcOfCircle(Part.Circle(Vector(81.2, -31.3, 0), Vector(0, 0, 1), 1.5), math.radians(0), math.radians(180)),
], False)
sketch5.addConstraint([
    Sketcher.Constraint("Tangent", 0, 2, 1, 2),
    Sketcher.Constraint("Tangent", 1, 1, 2, 1),
    Sketcher.Constraint("Tangent", 2, 2, 3, 2),
    Sketcher.Constraint("Tangent", 3, 1, 0, 1),
    Sketcher.Constraint("Vertical", 0),
    Sketcher.Constraint("Vertical", 2),
    Sketcher.Constraint("Radius", 1, 1.5),
    Sketcher.Constraint("DistanceY", 0, 2, 0, 1, 7.0),
    Sketcher.Constraint("DistanceX", -1, 1, 1, 3, 81.16),
    Sketcher.Constraint("DistanceY", 1, 3, -1, 1, 38.344),
])
sketch5.setExpression("Constraints[6]", "Params.sketch5_radius")
sketch5.setExpression("Constraints[7]", "Params.sketch5_height")
pocket4 = body.newObject("PartDesign::Pocket", "Pocket003")
pocket4.Profile = sketch5
pocket4.setExpression("Length", "Params.pocket4_length")
pocket4.Reversed = True

# Sketch on XY plane
sketch6 = body.newObject("Sketcher::SketchObject", "Sketch005")
sketch6.AttachmentSupport = (doc.getObject("XY_Plane"), [""])
sketch6.MapMode = "FlatFace"
sketch6.AttachmentOffset = App.Placement(Vector(0, 0, 7), App.Rotation())
sketch6.addGeometry([
    Part.LineSegment(Vector(69.7, -31.2, 0), Vector(69.7, -34.2, 0)),
    Part.LineSegment(Vector(69.7, -34.2, 0), Vector(74.7, -34.2, 0)),
    Part.LineSegment(Vector(74.7, -34.2, 0), Vector(74.7, -31.2, 0)),
    Part.LineSegment(Vector(74.7, -31.2, 0), Vector(69.7, -31.2, 0)),
], False)
sketch6.addConstraint([
    Sketcher.Constraint("Coincident", 0, 2, 1, 1),
    Sketcher.Constraint("Coincident", 1, 2, 2, 1),
    Sketcher.Constraint("Coincident", 2, 2, 3, 1),
    Sketcher.Constraint("Coincident", 3, 2, 0, 1),
    Sketcher.Constraint("Vertical", 0),
    Sketcher.Constraint("Horizontal", 1),
    Sketcher.Constraint("Vertical", 2),
    Sketcher.Constraint("Horizontal", 3),
    Sketcher.Constraint("DistanceX", 1, 1, 1, 2, 5.0),
    Sketcher.Constraint("DistanceY", 0, 2, 0, 1, 3.0),
    Sketcher.Constraint("DistanceX", -1, 1, 0, 2, 69.66),
    Sketcher.Constraint("DistanceY", 0, 2, -1, 1, 34.188),
])
sketch6.setExpression("Constraints[8]", "Params.sketch6_width")
sketch6.setExpression("Constraints[9]", "Params.sketch6_height")
pocket5 = body.newObject("PartDesign::Pocket", "Pocket004")
pocket5.Profile = sketch6
pocket5.setExpression("Length", "Params.pocket5_length")

doc.recompute()
